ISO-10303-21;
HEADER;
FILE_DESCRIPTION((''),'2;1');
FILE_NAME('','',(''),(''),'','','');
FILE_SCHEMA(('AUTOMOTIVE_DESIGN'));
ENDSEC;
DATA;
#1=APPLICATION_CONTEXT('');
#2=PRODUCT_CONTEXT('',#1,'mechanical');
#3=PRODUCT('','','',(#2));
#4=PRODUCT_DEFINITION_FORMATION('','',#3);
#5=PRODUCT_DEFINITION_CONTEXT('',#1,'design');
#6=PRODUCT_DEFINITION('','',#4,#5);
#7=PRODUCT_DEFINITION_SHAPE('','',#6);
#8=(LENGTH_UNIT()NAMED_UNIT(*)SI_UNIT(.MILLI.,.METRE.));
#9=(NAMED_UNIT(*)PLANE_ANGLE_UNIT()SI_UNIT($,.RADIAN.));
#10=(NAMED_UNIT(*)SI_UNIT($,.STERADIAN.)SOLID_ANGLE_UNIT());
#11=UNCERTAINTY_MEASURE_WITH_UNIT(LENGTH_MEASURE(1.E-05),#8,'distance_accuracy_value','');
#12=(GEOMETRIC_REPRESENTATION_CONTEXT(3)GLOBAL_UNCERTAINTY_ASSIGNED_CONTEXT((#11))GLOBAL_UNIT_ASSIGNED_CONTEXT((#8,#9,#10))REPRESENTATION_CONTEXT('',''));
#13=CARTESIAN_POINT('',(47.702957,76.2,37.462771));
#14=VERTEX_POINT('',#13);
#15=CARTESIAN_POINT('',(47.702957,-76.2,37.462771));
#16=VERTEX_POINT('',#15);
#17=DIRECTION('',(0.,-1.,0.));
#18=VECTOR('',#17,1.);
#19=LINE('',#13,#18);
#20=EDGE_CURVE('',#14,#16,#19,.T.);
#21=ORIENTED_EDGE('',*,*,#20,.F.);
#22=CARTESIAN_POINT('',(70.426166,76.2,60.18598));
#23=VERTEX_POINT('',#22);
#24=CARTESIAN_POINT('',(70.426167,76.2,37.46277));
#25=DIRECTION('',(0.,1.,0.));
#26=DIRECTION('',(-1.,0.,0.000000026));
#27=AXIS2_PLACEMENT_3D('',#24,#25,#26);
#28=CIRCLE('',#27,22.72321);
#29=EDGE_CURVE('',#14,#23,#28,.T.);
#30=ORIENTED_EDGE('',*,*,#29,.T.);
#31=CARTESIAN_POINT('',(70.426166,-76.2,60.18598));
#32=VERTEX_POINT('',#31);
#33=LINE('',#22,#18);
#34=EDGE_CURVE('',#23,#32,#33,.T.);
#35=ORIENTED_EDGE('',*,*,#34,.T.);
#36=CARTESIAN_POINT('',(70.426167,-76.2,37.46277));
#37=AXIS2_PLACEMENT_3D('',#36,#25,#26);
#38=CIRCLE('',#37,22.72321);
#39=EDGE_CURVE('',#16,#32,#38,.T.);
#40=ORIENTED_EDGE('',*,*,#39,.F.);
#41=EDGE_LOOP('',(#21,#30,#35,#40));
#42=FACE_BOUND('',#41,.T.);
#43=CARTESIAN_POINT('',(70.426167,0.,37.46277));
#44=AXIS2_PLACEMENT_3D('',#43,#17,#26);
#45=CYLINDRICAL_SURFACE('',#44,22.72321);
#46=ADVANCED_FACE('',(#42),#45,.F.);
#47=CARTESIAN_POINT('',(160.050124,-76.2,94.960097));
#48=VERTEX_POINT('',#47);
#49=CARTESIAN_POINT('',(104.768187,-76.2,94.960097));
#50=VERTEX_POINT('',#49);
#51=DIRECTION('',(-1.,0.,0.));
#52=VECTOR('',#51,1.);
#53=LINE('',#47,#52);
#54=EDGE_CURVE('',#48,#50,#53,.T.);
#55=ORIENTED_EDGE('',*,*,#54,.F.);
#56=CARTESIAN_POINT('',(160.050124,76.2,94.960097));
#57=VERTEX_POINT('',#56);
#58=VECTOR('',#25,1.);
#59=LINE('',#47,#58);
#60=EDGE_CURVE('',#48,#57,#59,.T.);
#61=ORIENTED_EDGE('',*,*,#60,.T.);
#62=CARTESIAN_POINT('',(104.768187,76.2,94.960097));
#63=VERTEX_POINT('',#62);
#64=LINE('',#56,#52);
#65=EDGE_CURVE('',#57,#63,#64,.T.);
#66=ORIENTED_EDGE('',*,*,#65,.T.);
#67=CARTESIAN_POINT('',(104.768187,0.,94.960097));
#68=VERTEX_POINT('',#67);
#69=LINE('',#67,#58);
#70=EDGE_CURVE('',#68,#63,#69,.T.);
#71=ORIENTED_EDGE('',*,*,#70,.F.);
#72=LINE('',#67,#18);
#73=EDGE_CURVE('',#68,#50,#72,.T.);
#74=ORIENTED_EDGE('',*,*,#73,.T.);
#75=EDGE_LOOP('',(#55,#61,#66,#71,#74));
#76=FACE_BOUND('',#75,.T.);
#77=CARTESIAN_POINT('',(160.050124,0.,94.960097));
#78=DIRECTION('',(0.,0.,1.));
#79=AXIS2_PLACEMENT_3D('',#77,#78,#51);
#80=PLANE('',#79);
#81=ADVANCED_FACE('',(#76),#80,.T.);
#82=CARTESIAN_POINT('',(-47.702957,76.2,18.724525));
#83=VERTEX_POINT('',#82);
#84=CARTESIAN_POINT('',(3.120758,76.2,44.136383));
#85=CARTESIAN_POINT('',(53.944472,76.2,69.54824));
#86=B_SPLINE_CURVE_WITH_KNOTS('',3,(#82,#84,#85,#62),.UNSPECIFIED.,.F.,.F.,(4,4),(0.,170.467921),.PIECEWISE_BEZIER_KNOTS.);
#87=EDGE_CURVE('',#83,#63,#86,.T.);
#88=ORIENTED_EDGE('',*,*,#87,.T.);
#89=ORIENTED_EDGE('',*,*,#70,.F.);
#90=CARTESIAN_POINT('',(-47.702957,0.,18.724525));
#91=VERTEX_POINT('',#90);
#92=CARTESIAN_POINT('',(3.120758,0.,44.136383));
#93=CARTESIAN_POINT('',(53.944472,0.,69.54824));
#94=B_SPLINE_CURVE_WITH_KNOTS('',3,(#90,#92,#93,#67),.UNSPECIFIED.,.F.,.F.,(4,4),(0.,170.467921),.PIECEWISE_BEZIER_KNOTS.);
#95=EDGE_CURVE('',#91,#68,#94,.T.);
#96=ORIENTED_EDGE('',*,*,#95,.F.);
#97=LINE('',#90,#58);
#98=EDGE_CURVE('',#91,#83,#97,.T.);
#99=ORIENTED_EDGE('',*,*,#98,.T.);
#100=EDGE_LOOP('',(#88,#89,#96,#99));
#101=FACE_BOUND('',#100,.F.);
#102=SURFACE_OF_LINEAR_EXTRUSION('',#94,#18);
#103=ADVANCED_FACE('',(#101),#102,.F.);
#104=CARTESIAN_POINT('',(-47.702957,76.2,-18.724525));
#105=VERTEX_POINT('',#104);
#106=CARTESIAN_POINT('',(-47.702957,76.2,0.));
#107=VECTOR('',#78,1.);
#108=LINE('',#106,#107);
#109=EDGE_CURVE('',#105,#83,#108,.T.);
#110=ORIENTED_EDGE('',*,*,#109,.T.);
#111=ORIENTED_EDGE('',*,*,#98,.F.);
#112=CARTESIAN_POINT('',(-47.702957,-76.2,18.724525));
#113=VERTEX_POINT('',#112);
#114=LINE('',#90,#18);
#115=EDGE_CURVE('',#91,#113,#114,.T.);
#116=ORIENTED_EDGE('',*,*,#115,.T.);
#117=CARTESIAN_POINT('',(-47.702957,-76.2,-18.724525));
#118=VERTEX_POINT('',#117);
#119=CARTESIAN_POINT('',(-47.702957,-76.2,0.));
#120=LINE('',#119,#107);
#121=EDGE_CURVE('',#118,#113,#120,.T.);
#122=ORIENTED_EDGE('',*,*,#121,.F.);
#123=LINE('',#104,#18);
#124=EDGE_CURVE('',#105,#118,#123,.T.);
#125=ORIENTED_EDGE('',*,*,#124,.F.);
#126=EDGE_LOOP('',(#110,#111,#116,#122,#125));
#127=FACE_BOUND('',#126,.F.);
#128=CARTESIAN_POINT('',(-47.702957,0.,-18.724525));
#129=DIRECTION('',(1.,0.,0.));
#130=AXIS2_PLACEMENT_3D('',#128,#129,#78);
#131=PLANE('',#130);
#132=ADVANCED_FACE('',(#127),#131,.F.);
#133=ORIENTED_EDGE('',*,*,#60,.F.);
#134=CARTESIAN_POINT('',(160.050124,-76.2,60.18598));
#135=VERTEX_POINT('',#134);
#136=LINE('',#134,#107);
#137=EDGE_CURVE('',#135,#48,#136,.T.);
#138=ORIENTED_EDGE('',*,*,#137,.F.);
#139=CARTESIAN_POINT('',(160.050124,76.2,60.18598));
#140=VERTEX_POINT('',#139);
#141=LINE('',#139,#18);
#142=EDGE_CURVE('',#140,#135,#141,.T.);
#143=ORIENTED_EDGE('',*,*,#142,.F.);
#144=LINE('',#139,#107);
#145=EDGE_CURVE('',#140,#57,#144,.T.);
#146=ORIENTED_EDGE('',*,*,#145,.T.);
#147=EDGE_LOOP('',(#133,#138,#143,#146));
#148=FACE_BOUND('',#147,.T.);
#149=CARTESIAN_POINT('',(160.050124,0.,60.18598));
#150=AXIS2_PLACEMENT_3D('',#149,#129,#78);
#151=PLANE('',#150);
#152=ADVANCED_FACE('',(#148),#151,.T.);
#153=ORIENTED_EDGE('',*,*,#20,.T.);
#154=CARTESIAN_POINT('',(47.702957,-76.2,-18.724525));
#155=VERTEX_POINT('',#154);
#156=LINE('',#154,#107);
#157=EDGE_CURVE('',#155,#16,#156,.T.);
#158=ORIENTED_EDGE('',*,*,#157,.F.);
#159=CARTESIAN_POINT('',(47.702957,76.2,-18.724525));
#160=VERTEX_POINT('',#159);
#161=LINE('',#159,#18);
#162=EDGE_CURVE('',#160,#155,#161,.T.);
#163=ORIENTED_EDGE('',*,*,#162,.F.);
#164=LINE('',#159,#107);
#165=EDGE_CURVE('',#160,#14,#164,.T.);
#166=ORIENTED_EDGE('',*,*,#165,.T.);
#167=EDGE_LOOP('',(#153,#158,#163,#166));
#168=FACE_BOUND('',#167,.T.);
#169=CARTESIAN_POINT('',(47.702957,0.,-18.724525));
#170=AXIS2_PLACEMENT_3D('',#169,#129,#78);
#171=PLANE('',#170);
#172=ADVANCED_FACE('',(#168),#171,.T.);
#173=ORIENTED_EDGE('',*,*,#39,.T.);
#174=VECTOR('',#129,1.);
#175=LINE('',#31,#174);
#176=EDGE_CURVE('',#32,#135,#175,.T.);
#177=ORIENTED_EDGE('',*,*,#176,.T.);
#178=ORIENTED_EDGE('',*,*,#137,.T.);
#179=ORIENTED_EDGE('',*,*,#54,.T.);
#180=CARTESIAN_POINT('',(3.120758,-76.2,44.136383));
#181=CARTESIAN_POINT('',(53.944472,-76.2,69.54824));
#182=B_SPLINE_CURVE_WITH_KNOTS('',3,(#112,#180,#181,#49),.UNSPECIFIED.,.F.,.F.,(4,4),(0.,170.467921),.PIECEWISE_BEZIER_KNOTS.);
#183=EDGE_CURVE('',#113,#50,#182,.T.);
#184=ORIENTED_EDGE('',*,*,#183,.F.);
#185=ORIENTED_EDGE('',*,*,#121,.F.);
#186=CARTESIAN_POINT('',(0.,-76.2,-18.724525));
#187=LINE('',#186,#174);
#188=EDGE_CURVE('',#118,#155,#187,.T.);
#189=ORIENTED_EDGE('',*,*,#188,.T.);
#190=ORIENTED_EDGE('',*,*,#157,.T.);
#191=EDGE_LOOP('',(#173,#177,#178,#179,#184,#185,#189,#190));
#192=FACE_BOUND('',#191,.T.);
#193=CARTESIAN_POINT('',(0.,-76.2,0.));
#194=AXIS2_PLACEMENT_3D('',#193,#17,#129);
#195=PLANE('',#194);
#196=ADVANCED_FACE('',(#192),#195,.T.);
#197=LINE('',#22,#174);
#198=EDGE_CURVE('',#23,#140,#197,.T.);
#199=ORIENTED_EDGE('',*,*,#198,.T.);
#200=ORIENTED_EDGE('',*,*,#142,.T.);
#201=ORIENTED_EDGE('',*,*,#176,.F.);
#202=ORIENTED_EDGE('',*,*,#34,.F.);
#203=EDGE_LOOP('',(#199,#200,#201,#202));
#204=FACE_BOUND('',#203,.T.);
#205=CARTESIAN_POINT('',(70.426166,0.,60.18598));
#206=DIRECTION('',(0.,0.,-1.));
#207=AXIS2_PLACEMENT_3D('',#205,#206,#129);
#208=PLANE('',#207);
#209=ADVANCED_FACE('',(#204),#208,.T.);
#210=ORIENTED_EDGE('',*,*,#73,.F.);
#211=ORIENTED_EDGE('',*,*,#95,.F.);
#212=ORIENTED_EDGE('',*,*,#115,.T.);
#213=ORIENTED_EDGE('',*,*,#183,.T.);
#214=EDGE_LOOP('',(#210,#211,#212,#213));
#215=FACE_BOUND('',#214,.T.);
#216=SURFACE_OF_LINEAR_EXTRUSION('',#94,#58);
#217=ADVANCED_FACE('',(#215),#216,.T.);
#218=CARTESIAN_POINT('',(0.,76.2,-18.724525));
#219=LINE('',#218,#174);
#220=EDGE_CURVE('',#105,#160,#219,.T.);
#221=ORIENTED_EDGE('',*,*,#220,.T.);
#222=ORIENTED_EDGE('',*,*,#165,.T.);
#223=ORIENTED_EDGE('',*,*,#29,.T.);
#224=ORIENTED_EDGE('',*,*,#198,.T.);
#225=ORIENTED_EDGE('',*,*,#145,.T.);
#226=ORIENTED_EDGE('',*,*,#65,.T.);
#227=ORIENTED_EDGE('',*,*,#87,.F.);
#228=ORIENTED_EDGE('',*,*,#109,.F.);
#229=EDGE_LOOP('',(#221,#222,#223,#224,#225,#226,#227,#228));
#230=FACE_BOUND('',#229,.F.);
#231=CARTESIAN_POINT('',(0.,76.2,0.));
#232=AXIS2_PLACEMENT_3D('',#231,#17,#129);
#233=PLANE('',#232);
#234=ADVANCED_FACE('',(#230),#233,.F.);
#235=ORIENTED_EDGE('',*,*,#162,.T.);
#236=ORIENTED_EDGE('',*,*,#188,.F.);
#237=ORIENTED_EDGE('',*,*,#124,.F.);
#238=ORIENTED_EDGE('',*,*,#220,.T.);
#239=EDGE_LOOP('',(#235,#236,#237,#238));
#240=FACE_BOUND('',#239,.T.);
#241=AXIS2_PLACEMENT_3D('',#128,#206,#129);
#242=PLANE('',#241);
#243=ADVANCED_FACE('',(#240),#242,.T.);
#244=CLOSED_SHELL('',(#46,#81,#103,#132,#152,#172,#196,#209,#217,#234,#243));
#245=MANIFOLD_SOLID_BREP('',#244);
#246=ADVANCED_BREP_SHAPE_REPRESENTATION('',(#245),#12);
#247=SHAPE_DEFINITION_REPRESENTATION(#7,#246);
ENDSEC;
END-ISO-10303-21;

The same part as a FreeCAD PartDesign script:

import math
import FreeCAD as App
import Part
import Sketcher

V = App.Vector
Q = App.Units.Quantity

doc = App.newDocument("Part")
params = doc.addObject("Spreadsheet::Sheet", "Params")
for row, (alias, value) in enumerate([
    ("pad1_length", "6 in"),
], start=1):
    params.set(f"A{row}", alias)
    params.set(f"B{row}", "=" + value)
    params.setAlias(f"B{row}", alias)

body = doc.addObject("PartDesign::Body", "Body")

# Sketch on XZ plane
sketch1 = doc.addObject("Sketcher::SketchObject", "Sketch")
body.addObject(sketch1)
sketch1.AttachmentSupport = (doc.XZ_Plane, [""])
sketch1.MapMode = "FlatFace"
sketch1.addGeometry([
    Part.LineSegment(V(-47.702957, 18.724525, 0), V(-47.702957, -18.724525, 0)),  # 0
    Part.LineSegment(V(-47.702957, -18.724525, 0), V(47.702957, -18.724525, 0)),  # 1
    Part.LineSegment(V(47.702957, -18.724525, 0), V(47.702957, 37.462771, 0)),  # 2
    Part.ArcOfCircle(Part.Circle(V(70.426167, 37.46277, 0), V(0, 0, 1), 22.72321), math.radians(90.000002), math.radians(179.999998)),  # 3
    Part.LineSegment(V(70.426166, 60.18598, 0), V(160.050124, 60.18598, 0)),  # 4
    Part.LineSegment(V(160.050124, 60.18598, 0), V(160.050124, 94.960097, 0)),  # 5
    Part.LineSegment(V(160.050124, 94.960097, 0), V(104.768187, 94.960097, 0)),  # 6
    Part.BSplineCurve([V(-47.702957, 18.724525, 0), V(3.120758, 44.136383, 0), V(53.944472, 69.54824, 0), V(104.768187, 94.960097, 0)], [4, 4], [0, 170.467921], False, 3, [1, 1, 1, 1], False),  # 7
], False)
sketch1.addConstraint([
    Sketcher.Constraint("Block", 7),
    Sketcher.Constraint("Coincident", 0, 2, 1, 1),
    Sketcher.Constraint("Coincident", 1, 2, 2, 1),
    Sketcher.Constraint("Tangent", 2, 2, 3, 2),
    Sketcher.Constraint("Tangent", 3, 1, 4, 1),
    Sketcher.Constraint("Coincident", 4, 2, 5, 1),
    Sketcher.Constraint("Coincident", 5, 2, 6, 1),
    Sketcher.Constraint("Coincident", 6, 2, 7, 2),
    Sketcher.Constraint("Coincident", 7, 1, 0, 1),
    Sketcher.Constraint("Vertical", 0),
    Sketcher.Constraint("Horizontal", 1),
    Sketcher.Constraint("Vertical", 2),
    Sketcher.Constraint("Horizontal", 4),
    Sketcher.Constraint("Vertical", 5),
    Sketcher.Constraint("Horizontal", 6),
    Sketcher.Constraint("Radius", 3, Q("22.72321 mm")),
    Sketcher.Constraint("DistanceX", 4, 1, 4, 2, Q("89.623958 mm")),
    Sketcher.Constraint("DistanceY", 0, 2, 0, 1, Q("37.44905 mm")),
    Sketcher.Constraint("DistanceX", 1, 1, 1, 2, Q("95.405914 mm")),
    Sketcher.Constraint("DistanceY", 2, 1, 2, 2, Q("56.187296 mm")),
])
pad1 = doc.addObject("PartDesign::Pad", "Pad")
body.addObject(pad1)
pad1.Profile = sketch1
pad1.setExpression("Length", "Params.pad1_length")
pad1.Midplane = True

doc.recompute()
